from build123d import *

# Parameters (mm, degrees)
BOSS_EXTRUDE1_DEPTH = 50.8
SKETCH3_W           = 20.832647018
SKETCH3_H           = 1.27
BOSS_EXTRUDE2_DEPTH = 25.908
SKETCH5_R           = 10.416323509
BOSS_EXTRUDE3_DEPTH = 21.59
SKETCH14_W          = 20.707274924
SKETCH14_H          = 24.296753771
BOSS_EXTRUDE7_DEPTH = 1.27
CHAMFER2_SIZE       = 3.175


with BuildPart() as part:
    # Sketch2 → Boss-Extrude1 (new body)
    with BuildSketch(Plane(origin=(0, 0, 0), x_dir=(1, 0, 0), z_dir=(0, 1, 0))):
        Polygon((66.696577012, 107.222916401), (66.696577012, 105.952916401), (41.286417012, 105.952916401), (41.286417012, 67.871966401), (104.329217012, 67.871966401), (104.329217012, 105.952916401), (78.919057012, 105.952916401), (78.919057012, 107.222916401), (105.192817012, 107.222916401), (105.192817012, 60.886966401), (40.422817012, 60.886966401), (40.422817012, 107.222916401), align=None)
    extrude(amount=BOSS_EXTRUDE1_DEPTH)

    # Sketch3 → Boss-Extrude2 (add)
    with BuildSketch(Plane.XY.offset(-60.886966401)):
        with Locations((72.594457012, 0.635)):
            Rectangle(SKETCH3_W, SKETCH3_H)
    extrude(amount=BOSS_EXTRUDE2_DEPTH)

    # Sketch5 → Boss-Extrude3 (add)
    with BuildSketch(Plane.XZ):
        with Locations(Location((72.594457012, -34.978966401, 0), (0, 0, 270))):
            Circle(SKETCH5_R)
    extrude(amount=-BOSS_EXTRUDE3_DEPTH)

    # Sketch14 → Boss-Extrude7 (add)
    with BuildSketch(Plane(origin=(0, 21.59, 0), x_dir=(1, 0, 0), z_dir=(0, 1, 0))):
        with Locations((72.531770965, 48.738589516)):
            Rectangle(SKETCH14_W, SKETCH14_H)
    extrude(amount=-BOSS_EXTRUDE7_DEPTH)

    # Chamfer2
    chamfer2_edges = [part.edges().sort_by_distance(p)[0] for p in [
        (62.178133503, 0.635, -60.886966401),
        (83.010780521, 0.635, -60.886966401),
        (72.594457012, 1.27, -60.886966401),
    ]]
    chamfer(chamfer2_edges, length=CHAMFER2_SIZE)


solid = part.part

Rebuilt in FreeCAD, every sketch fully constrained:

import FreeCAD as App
import Part
import Sketcher

V = App.Vector
Q = App.Units.Quantity


def edges_at(feature, points):
    """Names of the edges that pass closest to the given points."""
    edges = feature.Shape.Edges
    near = lambda p: min(range(len(edges)), key=lambda i: edges[i].distToShape(Part.Vertex(*p))[0])
    return sorted({f"Edge{near(p) + 1}" for p in points})


def add_polygon(sketch, points):
    """Adds a closed chain of lines whose ends are joined by coincident constraints."""
    first, n = sketch.GeometryCount, len(points)
    for a, b in zip(points, points[1:] + points[:1]):
        sketch.addGeometry(Part.LineSegment(App.Vector(*a, 0), App.Vector(*b, 0)), False)
    for i in range(n):
        sketch.addConstraint(Sketcher.Constraint("Coincident", first + i, 2, first + (i + 1) % n, 1))

doc = App.newDocument("Part")
body = doc.addObject("PartDesign::Body", "Body")

sketch1 = doc.addObject("Sketcher::SketchObject", "Sketch")
body.addObject(sketch1)
sketch1.AttachmentSupport = (doc.XZ_Plane, [""])
sketch1.MapMode = "FlatFace"
add_polygon(sketch1, [(66.7, -106), (66.7, -107.2), (40.4, -107.2), (40.4, -60.9), (105.2, -60.9), (105.2, -107.2), (78.9, -107.2), (78.9, -106), (104.3, -106), (104.3, -67.9), (41.3, -67.9), (41.3, -106)])
sketch1.addConstraint([
    Sketcher.Constraint("Vertical", 0),
    Sketcher.Constraint("Horizontal", 1),
    Sketcher.Constraint("Vertical", 2),
    Sketcher.Constraint("Horizontal", 3),
    Sketcher.Constraint("Vertical", 4),
    Sketcher.Constraint("Horizontal", 5),
    Sketcher.Constraint("Vertical", 6),
    Sketcher.Constraint("Horizontal", 7),
    Sketcher.Constraint("Vertical", 8),
    Sketcher.Constraint("Horizontal", 9),
    Sketcher.Constraint("Vertical", 10),
    Sketcher.Constraint("Horizontal", 11),
    Sketcher.Constraint("Horizontal", 1, 2, 4, 2),
    Sketcher.Constraint("Horizontal", 7, 2, 10, 2),
    Sketcher.Constraint("Equal", 1, 5),
    Sketcher.Constraint("Equal", 7, 11),
    Sketcher.Constraint("DistanceX", 3, 1, 3, 2, Q("2.55 in")),
    Sketcher.Constraint("DistanceY", 0, 2, 0, 1, Q("0.05 in")),
    Sketcher.Constraint("DistanceX", 9, 2, 9, 1, Q("2.482 in")),
    Sketcher.Constraint("DistanceX", 1, 2, 1, 1, Q("1.0344 in")),
    Sketcher.Constraint("DistanceY", 8, 2, 3, 2, Q("0.275 in")),
    Sketcher.Constraint("DistanceY", 2, 1, 2, 2, 46.33595),
    Sketcher.Constraint("DistanceX", -1, 1, 0, 2, 66.696577),
    Sketcher.Constraint("DistanceY", 0, 2, -1, 1, 107.222916),
])
pad1 = doc.addObject("PartDesign::Pad", "Pad")
body.addObject(pad1)
pad1.Profile = sketch1
pad1.Length = Q("2 in")
pad1.Reversed = True

sketch2 = doc.addObject("Sketcher::SketchObject", "Sketch001")
body.addObject(sketch2)
sketch2.AttachmentSupport = (doc.XY_Plane, [""])
sketch2.MapMode = "FlatFace"
sketch2.AttachmentOffset = App.Placement(V(0, 0, -60.886966), App.Rotation())
add_polygon(sketch2, [(62.2, 1.3), (62.2, 0), (83, 0), (83, 1.3)])
sketch2.addConstraint([
    Sketcher.Constraint("Vertical", 0),
    Sketcher.Constraint("Horizontal", 1),
    Sketcher.Constraint("Vertical", 2),
    Sketcher.Constraint("Horizontal", 3),
    Sketcher.Constraint("PointOnObject", 0, 2, -1),
    Sketcher.Constraint("DistanceY", 0, 2, 0, 1, Q("0.05 in")),
    Sketcher.Constraint("DistanceX", 1, 1, 1, 2, 20.832647),
    Sketcher.Constraint("DistanceX", -1, 1, 1, 2, 83.010781),
])
pad2 = doc.addObject("PartDesign::Pad", "Pad001")
body.addObject(pad2)
pad2.Profile = sketch2
pad2.Length = Q("1.02 in")

sketch3 = doc.addObject("Sketcher::SketchObject", "Sketch002")
body.addObject(sketch3)
sketch3.AttachmentSupport = (doc.XZ_Plane, [""])
sketch3.MapMode = "FlatFace"
sketch3.addGeometry(Part.Circle(V(73, -35, 0), V(0, 0, 1), 10), False)
sketch3.addConstraint([
    Sketcher.Constraint("Diameter", 0, 20.832647),
    Sketcher.Constraint("DistanceX", -1, 1, 0, 3, 72.594457),
    Sketcher.Constraint("DistanceY", 0, 3, -1, 1, 34.978966),
])
pad3 = doc.addObject("PartDesign::Pad", "Pad002")
body.addObject(pad3)
pad3.Profile = sketch3
pad3.Length = Q("0.85 in")
pad3.Reversed = True

sketch4 = doc.addObject("Sketcher::SketchObject", "Sketch003")
body.addObject(sketch4)
sketch4.AttachmentSupport = (doc.XZ_Plane, [""])
sketch4.MapMode = "FlatFace"
sketch4.AttachmentOffset = App.Placement(V(0, 0, -0.85 * 25.4), App.Rotation())
add_polygon(sketch4, [(62, -61), (62, -37), (83, -37), (83, -61)])
sketch4.addConstraint([
    Sketcher.Constraint("Vertical", 0),
    Sketcher.Constraint("Horizontal", 1),
    Sketcher.Constraint("Vertical", 2),
    Sketcher.Constraint("Horizontal", 3),
    Sketcher.Constraint("DistanceX", 1, 1, 1, 2, 20.707275),
    Sketcher.Constraint("DistanceY", 0, 1, 0, 2, 24.296754),
    Sketcher.Constraint("DistanceX", -1, 1, 1, 2, 82.885408),
    Sketcher.Constraint("DistanceY", 0, 2, -1, 1, 36.590213),
])
pad4 = doc.addObject("PartDesign::Pad", "Pad003")
body.addObject(pad4)
pad4.Profile = sketch4
pad4.Length = Q("0.05 in")
doc.recompute()

chamfer = doc.addObject("PartDesign::Chamfer", "Chamfer")
body.addObject(chamfer)
chamfer.Base = (pad4, edges_at(pad4, [(62.178, 0.635, -60.887), (83.011, 0.635, -60.887), (72.594, 1.27, -60.887)]))
chamfer.Size = Q("0.125 in")

doc.recompute()
